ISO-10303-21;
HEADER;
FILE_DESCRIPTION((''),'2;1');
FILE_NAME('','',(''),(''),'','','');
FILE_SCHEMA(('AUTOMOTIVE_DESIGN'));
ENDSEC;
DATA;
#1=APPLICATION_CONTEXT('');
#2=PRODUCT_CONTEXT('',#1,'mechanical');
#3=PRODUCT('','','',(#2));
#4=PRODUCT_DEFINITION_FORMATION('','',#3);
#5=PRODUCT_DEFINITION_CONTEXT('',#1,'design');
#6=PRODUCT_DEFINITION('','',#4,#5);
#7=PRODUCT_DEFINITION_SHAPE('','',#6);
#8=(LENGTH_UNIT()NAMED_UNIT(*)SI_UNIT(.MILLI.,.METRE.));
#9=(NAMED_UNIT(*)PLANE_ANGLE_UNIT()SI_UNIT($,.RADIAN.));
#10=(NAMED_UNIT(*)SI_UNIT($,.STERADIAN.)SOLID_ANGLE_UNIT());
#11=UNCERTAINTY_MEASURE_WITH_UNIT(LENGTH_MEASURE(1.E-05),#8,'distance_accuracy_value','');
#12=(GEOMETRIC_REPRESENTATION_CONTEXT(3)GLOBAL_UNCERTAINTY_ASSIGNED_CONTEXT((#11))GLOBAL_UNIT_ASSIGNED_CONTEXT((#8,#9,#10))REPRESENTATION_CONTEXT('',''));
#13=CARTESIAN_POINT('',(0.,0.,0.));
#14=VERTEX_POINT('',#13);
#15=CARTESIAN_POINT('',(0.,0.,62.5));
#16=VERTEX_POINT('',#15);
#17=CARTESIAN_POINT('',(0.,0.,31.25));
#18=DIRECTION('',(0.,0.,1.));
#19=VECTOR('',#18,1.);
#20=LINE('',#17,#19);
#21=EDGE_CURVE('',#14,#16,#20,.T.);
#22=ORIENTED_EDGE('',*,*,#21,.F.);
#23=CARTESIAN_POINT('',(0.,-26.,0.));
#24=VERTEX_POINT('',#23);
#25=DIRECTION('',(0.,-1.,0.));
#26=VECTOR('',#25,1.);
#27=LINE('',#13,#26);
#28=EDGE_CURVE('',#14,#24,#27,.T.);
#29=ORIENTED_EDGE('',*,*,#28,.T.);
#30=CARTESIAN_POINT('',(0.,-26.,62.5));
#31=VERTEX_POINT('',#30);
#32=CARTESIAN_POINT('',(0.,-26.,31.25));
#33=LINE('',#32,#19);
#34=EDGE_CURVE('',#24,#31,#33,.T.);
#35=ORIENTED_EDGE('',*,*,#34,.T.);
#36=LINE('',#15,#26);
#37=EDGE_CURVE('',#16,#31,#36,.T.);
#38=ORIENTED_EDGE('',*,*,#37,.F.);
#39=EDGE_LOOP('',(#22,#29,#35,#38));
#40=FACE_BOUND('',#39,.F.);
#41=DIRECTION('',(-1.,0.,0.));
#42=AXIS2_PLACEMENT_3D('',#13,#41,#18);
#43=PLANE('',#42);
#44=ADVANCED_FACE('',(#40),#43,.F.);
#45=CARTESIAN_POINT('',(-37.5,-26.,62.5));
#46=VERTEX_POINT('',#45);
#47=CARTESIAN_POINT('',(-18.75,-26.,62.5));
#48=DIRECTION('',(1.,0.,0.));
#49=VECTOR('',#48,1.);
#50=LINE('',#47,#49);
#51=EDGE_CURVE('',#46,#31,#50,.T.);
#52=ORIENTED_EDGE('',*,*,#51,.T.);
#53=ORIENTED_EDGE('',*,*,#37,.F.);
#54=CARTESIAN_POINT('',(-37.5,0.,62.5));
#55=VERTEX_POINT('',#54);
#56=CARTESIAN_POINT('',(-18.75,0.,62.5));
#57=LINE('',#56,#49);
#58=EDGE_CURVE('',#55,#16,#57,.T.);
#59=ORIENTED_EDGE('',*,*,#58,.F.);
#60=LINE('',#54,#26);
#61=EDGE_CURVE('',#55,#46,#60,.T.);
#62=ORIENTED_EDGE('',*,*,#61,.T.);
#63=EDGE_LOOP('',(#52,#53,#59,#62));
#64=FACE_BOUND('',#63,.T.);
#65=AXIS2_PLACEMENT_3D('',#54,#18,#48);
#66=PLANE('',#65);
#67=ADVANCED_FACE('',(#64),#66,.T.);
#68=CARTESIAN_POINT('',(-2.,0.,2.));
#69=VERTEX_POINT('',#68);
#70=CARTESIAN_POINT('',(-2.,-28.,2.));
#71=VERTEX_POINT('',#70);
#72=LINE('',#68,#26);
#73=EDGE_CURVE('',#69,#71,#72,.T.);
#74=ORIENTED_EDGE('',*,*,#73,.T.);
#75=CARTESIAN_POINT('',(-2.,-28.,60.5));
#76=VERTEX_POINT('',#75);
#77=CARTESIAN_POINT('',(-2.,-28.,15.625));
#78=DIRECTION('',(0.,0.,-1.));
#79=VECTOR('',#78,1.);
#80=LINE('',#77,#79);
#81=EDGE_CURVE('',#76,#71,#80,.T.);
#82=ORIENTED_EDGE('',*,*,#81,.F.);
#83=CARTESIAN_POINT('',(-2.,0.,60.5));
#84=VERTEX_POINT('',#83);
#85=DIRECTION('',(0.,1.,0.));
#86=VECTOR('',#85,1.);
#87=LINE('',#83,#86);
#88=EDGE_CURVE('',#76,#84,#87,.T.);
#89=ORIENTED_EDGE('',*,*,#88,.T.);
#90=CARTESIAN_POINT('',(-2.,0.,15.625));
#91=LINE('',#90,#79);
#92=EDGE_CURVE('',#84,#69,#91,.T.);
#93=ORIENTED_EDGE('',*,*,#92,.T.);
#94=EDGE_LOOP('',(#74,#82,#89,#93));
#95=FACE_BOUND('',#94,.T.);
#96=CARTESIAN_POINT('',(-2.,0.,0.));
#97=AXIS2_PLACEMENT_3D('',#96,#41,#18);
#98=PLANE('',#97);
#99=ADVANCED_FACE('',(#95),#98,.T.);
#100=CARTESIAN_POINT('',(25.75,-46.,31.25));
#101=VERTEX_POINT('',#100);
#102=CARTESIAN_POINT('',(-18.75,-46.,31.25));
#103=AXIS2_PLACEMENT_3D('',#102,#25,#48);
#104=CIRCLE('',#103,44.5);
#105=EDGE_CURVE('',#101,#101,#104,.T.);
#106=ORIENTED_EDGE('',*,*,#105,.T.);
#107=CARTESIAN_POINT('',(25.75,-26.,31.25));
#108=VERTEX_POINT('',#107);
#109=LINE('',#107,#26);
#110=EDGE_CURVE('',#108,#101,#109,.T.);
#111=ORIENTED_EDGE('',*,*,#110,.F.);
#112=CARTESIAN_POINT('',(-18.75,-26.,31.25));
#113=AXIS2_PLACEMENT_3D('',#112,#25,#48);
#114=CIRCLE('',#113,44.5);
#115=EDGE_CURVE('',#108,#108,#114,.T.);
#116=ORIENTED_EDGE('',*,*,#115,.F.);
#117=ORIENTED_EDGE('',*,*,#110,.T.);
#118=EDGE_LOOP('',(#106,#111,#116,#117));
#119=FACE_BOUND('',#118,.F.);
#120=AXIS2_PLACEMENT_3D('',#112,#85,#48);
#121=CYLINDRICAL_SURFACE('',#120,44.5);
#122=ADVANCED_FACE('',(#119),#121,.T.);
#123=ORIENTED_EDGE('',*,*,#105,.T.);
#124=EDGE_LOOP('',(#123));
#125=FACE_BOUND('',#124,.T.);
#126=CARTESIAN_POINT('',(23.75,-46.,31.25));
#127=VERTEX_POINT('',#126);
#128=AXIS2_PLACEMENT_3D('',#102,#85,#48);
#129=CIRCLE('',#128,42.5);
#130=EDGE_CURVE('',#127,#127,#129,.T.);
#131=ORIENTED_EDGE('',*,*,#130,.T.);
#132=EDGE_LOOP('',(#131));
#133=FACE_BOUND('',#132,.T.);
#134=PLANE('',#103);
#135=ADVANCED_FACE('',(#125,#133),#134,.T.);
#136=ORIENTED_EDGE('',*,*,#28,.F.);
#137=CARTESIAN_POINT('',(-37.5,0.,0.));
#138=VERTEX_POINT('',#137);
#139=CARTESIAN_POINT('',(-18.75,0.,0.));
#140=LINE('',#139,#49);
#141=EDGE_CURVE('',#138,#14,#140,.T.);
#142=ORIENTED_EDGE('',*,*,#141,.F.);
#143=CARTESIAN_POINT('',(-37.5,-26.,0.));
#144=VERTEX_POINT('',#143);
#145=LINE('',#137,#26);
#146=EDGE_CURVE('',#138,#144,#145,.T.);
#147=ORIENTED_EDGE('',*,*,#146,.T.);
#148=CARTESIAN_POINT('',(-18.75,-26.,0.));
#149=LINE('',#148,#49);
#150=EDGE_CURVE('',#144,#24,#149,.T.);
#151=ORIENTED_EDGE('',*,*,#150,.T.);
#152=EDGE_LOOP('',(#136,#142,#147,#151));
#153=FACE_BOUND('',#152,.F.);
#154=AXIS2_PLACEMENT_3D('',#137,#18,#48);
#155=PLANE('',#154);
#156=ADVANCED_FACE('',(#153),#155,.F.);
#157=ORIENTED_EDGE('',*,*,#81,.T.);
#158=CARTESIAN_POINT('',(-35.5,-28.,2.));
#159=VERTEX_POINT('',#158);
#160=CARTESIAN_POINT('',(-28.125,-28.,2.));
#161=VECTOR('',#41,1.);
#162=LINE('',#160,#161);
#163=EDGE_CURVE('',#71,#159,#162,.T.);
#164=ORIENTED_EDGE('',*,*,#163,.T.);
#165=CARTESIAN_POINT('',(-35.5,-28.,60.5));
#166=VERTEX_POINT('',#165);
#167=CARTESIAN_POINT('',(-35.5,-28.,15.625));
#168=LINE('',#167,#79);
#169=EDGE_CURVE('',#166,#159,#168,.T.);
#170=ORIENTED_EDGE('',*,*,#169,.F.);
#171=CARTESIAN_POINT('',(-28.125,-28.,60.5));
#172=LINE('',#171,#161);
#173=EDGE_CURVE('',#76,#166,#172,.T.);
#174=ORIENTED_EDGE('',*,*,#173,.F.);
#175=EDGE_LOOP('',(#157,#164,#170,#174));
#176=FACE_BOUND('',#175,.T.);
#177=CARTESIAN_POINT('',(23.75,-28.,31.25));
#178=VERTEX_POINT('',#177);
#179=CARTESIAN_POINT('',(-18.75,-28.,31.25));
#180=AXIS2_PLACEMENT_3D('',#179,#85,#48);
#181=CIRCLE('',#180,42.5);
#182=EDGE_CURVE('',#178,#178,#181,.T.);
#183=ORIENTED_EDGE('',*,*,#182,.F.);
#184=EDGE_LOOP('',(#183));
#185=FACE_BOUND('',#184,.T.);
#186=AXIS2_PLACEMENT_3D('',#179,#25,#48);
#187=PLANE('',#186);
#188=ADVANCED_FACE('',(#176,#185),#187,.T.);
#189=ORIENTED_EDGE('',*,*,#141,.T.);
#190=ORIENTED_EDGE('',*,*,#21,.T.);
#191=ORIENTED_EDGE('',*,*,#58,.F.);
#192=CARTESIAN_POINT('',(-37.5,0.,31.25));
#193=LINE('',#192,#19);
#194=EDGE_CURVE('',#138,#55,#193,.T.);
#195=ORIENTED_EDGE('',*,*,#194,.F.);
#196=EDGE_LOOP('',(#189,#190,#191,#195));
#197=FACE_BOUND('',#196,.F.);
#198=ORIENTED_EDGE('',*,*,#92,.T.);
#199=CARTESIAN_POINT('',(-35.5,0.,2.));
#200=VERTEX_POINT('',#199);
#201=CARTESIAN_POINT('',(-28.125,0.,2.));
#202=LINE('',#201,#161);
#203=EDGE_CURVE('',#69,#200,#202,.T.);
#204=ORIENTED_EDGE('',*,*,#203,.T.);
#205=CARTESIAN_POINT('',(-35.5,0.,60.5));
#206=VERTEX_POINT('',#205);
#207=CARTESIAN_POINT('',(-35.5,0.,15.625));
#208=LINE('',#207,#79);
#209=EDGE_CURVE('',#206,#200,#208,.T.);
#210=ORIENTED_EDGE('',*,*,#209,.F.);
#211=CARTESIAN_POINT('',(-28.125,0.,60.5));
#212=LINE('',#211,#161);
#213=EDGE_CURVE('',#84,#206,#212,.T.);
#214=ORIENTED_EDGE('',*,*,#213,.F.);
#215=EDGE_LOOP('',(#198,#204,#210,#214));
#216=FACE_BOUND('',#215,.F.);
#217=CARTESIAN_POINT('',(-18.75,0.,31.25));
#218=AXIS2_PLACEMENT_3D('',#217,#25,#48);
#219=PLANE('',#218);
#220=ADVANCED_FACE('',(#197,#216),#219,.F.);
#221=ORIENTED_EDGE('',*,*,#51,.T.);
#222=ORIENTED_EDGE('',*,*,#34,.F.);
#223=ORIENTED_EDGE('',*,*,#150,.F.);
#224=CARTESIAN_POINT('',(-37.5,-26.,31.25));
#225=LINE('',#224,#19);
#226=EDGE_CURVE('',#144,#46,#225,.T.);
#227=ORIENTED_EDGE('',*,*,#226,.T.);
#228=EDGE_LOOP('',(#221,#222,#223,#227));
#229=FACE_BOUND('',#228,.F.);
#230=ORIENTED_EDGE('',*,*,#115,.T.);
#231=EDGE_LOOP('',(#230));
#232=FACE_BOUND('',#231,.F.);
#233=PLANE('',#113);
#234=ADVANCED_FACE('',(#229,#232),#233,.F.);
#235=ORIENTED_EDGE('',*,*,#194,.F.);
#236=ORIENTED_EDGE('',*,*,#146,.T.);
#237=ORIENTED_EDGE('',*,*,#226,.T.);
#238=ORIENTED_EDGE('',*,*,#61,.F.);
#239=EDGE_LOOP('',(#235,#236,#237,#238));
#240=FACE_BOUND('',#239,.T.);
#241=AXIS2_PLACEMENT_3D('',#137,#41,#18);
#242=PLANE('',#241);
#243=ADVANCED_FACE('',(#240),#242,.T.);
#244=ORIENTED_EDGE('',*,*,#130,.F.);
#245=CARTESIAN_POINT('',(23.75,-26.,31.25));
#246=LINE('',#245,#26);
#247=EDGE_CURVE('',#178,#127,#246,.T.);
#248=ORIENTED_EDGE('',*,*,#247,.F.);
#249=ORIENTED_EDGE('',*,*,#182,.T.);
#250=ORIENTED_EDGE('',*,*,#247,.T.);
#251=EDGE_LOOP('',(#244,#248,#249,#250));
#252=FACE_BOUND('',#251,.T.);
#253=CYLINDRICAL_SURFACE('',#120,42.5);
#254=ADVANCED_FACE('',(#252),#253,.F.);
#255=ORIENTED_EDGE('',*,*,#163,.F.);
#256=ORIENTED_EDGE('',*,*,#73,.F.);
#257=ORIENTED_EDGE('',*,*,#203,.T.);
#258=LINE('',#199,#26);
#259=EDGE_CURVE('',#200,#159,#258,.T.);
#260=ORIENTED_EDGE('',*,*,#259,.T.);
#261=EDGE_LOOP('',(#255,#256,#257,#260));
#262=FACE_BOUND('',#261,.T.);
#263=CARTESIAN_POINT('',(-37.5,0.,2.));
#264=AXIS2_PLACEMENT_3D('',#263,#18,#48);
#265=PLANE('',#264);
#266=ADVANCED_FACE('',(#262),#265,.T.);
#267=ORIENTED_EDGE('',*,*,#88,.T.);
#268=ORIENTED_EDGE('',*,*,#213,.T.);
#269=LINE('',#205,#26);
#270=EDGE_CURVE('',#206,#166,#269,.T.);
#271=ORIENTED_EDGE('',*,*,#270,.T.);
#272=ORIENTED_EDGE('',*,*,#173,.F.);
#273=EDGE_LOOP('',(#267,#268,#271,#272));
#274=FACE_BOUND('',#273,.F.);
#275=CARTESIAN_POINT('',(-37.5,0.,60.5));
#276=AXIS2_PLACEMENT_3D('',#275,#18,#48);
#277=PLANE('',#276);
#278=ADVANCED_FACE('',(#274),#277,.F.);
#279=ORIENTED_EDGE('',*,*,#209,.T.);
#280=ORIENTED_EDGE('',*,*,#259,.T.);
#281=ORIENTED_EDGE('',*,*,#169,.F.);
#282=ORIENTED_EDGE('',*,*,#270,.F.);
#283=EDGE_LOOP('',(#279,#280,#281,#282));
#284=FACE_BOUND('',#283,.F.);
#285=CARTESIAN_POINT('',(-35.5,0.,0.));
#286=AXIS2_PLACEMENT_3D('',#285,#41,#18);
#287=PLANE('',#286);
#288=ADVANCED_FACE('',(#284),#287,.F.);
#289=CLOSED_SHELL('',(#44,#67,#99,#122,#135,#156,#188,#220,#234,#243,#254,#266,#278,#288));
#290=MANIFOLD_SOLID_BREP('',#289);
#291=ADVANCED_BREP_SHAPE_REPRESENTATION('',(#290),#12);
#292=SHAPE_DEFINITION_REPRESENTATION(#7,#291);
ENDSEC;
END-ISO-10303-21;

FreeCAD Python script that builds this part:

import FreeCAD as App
import Part
import Sketcher

V = App.Vector
Q = App.Units.Quantity


def faces_at(feature, points):
    """Names of the faces that lie closest to the given points."""
    faces = feature.Shape.Faces
    near = lambda p: min(range(len(faces)), key=lambda i: faces[i].distToShape(Part.Vertex(*p))[0])
    return sorted({f"Face{near(p) + 1}" for p in points})

doc = App.newDocument("Part")
body = doc.addObject("PartDesign::Body", "Body")

sketch1 = doc.addObject("Sketcher::SketchObject", "Sketch")
body.addObject(sketch1)
sketch1.AttachmentSupport = (doc.XZ_Plane, [""])
sketch1.MapMode = "FlatFace"
sketch1.addGeometry([
    Part.LineSegment(V(-38, 62, 0), V(-38, 0, 0)),
    Part.LineSegment(V(-38, 0, 0), V(0, 0, 0)),
    Part.LineSegment(V(0, 0, 0), V(0, 62, 0)),
    Part.LineSegment(V(0, 62, 0), V(-38, 62, 0)),
], False)
sketch1.addConstraint([
    Sketcher.Constraint("Coincident", 0, 2, 1, 1),
    Sketcher.Constraint("Coincident", 1, 2, 2, 1),
    Sketcher.Constraint("Coincident", 2, 2, 3, 1),
    Sketcher.Constraint("Coincident", 3, 2, 0, 1),
    Sketcher.Constraint("Vertical", 0),
    Sketcher.Constraint("Horizontal", 1),
    Sketcher.Constraint("Vertical", 2),
    Sketcher.Constraint("Horizontal", 3),
    Sketcher.Constraint("Coincident", 1, 2, -1, 1),
    Sketcher.Constraint("DistanceX", 1, 1, 1, 2, Q("37.5 mm")),
    Sketcher.Constraint("DistanceY", 0, 2, 0, 1, Q("62.5 mm")),
])
pad1 = doc.addObject("PartDesign::Pad", "Pad")
body.addObject(pad1)
pad1.Profile = sketch1
pad1.Length = 26

sketch2 = doc.addObject("Sketcher::SketchObject", "Sketch001")
body.addObject(sketch2)
sketch2.AttachmentSupport = (doc.XZ_Plane, [""])
sketch2.MapMode = "FlatFace"
sketch2.AttachmentOffset = App.Placement(V(0, 0, 26), App.Rotation())
sketch2.addGeometry(Part.Circle(V(-19, 31, 0), V(0, 0, 1), 44), False)
sketch2.addConstraint([
    Sketcher.Constraint("Diameter", 0, Q("89 mm")),
    Sketcher.Constraint("DistanceX", 0, 3, -1, 1, Q("18.75 mm")),
    Sketcher.Constraint("DistanceY", -1, 1, 0, 3, Q("31.25 mm")),
])
pad2 = doc.addObject("PartDesign::Pad", "Pad001")
body.addObject(pad2)
pad2.Profile = sketch2
pad2.Length = 20
doc.recompute()

thickness = doc.addObject("PartDesign::Thickness", "Thickness")
body.addObject(thickness)
thickness.Base = (pad2, faces_at(pad2, [(-18.75, -46, 31.25), (-18.75, 0, 31.25)]))
thickness.Value = 2
thickness.Reversed = True
thickness.Join = "Intersection"

doc.recompute()
